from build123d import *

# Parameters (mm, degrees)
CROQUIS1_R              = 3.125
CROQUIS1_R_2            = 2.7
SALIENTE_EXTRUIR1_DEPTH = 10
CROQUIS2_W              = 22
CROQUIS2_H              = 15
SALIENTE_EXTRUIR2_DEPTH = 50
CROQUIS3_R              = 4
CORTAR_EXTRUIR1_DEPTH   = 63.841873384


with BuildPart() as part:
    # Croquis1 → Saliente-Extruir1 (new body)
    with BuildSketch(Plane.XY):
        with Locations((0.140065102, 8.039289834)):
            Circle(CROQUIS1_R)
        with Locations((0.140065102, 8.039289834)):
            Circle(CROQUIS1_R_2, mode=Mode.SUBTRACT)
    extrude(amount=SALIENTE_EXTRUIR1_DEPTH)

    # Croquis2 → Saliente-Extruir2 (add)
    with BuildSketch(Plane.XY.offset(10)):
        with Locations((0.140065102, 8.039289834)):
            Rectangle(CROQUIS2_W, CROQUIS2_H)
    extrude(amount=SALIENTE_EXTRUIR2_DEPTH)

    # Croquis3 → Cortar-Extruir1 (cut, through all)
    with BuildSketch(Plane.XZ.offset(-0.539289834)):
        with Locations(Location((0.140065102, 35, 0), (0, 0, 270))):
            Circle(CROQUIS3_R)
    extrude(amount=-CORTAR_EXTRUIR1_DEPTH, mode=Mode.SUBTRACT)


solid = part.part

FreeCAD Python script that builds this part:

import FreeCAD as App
import Part
import Sketcher
from FreeCAD import Vector
Q = App.Units.Quantity

doc = App.newDocument("Part")
body = doc.addObject("PartDesign::Body", "Body")

# Sketch on XY plane
sketch1 = body.newObject("Sketcher::SketchObject", "Sketch")
sketch1.AttachmentSupport = (doc.getObject("XY_Plane"), [""])
sketch1.MapMode = "FlatFace"
sketch1.addGeometry([
    Part.Circle(Vector(0.1, 8, 0), Vector(0, 0, 1), 3.1),
    Part.Circle(Vector(0.1, 8, 0), Vector(0, 0, 1), 2.7),
], False)
sketch1.addConstraint([
    Sketcher.Constraint("Coincident", 1, 3, 0, 3),
    Sketcher.Constraint("Diameter", 1, Q("5.4 mm")),
    Sketcher.Constraint("Diameter", 0, Q("6.25 mm")),
    Sketcher.Constraint("DistanceY", -1, 1, 0, 3, Q("8.03929 mm")),
    Sketcher.Constraint("DistanceX", -1, 1, 0, 3, Q("0.140065 mm")),
])
pad1 = body.newObject("PartDesign::Pad", "Pad")
pad1.Profile = sketch1
pad1.Length = 10

# Sketch on XY plane
sketch2 = body.newObject("Sketcher::SketchObject", "Sketch001")
sketch2.AttachmentSupport = (doc.getObject("XY_Plane"), [""])
sketch2.MapMode = "FlatFace"
sketch2.AttachmentOffset = App.Placement(Vector(0, 0, 10), App.Rotation())
sketch2.addGeometry([
    Part.LineSegment(Vector(-11, 16, 0), Vector(-11, 1, 0)),
    Part.LineSegment(Vector(-11, 1, 0), Vector(11, 1, 0)),
    Part.LineSegment(Vector(11, 1, 0), Vector(11, 16, 0)),
    Part.LineSegment(Vector(11, 16, 0), Vector(-11, 16, 0)),
], False)
sketch2.addConstraint([
    Sketcher.Constraint("Coincident", 0, 2, 1, 1),
    Sketcher.Constraint("Coincident", 1, 2, 2, 1),
    Sketcher.Constraint("Coincident", 2, 2, 3, 1),
    Sketcher.Constraint("Coincident", 3, 2, 0, 1),
    Sketcher.Constraint("Vertical", 0),
    Sketcher.Constraint("Horizontal", 1),
    Sketcher.Constraint("Vertical", 2),
    Sketcher.Constraint("Horizontal", 3),
    Sketcher.Constraint("DistanceX", 1, 1, 1, 2, Q("22 mm")),
    Sketcher.Constraint("DistanceY", 0, 2, 0, 1, Q("15 mm")),
    Sketcher.Constraint("DistanceY", -1, 1, 0, 2, Q("0.53929 mm")),
    Sketcher.Constraint("DistanceX", 0, 2, -1, 1, Q("10.859935 mm")),
])
pad2 = body.newObject("PartDesign::Pad", "Pad001")
pad2.Profile = sketch2
pad2.Length = 50

# Sketch on XZ plane
sketch3 = body.newObject("Sketcher::SketchObject", "Sketch002")
sketch3.AttachmentSupport = (doc.getObject("XZ_Plane"), [""])
sketch3.MapMode = "FlatFace"
sketch3.AttachmentOffset = App.Placement(Vector(0, 0, -0.53929), App.Rotation())
sketch3.addGeometry(Part.Circle(Vector(0.1, 35, 0), Vector(0, 0, 1), 4), False)
sketch3.addConstraint([
    Sketcher.Constraint("Diameter", 0, Q("8 mm")),
    Sketcher.Constraint("DistanceY", -1, 1, 0, 3, Q("35 mm")),
    Sketcher.Constraint("DistanceX", -1, 1, 0, 3, Q("0.140065 mm")),
])
pocket1 = body.newObject("PartDesign::Pocket", "Pocket")
pocket1.Profile = sketch3
pocket1.Type = "ThroughAll"

doc.recompute()
